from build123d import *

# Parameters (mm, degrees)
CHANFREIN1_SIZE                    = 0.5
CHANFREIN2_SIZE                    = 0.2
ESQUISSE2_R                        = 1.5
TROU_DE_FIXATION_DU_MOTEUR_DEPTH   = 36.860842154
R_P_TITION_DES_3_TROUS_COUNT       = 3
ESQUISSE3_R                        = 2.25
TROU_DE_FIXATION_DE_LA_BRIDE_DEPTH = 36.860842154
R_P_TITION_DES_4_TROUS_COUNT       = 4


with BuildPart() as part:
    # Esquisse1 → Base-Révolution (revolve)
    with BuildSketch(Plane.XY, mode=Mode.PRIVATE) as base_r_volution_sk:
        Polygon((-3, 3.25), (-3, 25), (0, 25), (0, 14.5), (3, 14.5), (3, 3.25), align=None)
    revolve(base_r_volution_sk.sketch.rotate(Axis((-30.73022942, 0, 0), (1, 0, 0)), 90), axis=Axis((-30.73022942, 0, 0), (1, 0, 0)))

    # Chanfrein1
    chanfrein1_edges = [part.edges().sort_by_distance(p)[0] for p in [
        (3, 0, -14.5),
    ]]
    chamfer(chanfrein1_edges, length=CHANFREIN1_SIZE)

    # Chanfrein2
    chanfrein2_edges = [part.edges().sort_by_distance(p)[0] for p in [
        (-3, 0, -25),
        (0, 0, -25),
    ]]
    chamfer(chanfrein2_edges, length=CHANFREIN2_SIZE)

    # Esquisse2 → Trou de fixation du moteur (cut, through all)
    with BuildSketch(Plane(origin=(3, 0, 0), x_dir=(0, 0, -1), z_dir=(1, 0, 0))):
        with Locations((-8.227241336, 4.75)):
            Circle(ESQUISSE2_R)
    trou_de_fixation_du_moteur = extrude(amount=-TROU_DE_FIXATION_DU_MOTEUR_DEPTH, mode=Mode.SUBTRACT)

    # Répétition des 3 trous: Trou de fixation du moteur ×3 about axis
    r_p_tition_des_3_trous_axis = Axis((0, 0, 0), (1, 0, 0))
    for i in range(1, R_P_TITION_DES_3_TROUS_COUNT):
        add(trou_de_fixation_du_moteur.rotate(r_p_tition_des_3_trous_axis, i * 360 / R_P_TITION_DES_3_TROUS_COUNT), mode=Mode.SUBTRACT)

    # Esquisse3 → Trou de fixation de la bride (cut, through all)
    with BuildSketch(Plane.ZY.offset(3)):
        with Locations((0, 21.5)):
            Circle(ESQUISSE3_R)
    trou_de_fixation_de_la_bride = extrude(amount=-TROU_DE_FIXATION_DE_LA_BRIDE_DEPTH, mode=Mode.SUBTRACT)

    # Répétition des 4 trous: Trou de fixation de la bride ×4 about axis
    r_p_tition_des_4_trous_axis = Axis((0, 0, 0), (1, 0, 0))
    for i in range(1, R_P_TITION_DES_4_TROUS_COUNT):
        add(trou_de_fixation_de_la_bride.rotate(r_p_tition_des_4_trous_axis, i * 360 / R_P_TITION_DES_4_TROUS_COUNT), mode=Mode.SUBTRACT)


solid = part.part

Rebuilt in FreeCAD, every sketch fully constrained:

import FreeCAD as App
import Part
import Sketcher

V = App.Vector


def edges_at(feature, points):
    """Names of the edges that pass closest to the given points."""
    edges = feature.Shape.Edges
    near = lambda p: min(range(len(edges)), key=lambda i: edges[i].distToShape(Part.Vertex(*p))[0])
    return sorted({f"Edge{near(p) + 1}" for p in points})


def add_polygon(sketch, points):
    """Adds a closed chain of lines whose ends are joined by coincident constraints."""
    first, n = sketch.GeometryCount, len(points)
    for a, b in zip(points, points[1:] + points[:1]):
        sketch.addGeometry(Part.LineSegment(App.Vector(*a, 0), App.Vector(*b, 0)), False)
    for i in range(n):
        sketch.addConstraint(Sketcher.Constraint("Coincident", first + i, 2, first + (i + 1) % n, 1))

doc = App.newDocument("Part")
body = doc.addObject("PartDesign::Body", "Body")

# Sketch on XY plane
sketch1 = body.newObject("Sketcher::SketchObject", "Sketch")
sketch1.AttachmentSupport = (doc.getObject("XY_Plane"), [""])
sketch1.MapMode = "FlatFace"
add_polygon(sketch1, [(-3, 25), (-3, 3.2), (3, 3.2), (3, 14.5), (0, 14.5), (0, 25)])  # lines 0-5
sketch1.addConstraint([
    Sketcher.Constraint("Vertical", 0),
    Sketcher.Constraint("Horizontal", 1),
    Sketcher.Constraint("Vertical", 2),
    Sketcher.Constraint("Horizontal", 3),
    Sketcher.Constraint("Vertical", 4),
    Sketcher.Constraint("Horizontal", 5),
    Sketcher.Constraint("PointOnObject", 3, 2, -2),
    Sketcher.Constraint("Equal", 3, 5),
    Sketcher.Constraint("DistanceX", 1, 1, 1, 2, 6.0),
    Sketcher.Constraint("DistanceY", 4, 1, 4, 2, 10.5),
    Sketcher.Constraint("DistanceY", -1, 1, 4, 2, 25.0),
    Sketcher.Constraint("DistanceY", 0, 2, 0, 1, 21.75),
])
revolution = body.newObject("PartDesign::Revolution", "Revolution")
revolution.Profile = sketch1
revolution.ReferenceAxis = (sketch1, ["H_Axis"])
revolution.Angle = 360
doc.recompute()

chamfer = body.newObject("PartDesign::Chamfer", "Chamfer")
chamfer.Base = (revolution, edges_at(revolution, [(3, 0, -14.5)]))
chamfer.Size = 0.5
doc.recompute()

chamfer2 = body.newObject("PartDesign::Chamfer", "Chamfer001")
chamfer2.Base = (chamfer, edges_at(chamfer, [(-3, 0, -25), (0, 0, -25)]))
chamfer2.Size = 0.2

# Sketch on YZ plane
sketch2 = body.newObject("Sketcher::SketchObject", "Sketch001")
sketch2.AttachmentSupport = (doc.getObject("YZ_Plane"), [""])
sketch2.MapMode = "FlatFace"
sketch2.AttachmentOffset = App.Placement(V(0, 0, 3), App.Rotation())
sketch2.addGeometry(Part.Circle(V(4.8, 8.2, 0), V(0, 0, 1), 1.5), False)
sketch2.addConstraint([
    Sketcher.Constraint("Diameter", 0, 3.0),
    Sketcher.Constraint("DistanceX", -1, 1, 0, 3, 4.75),
    Sketcher.Constraint("DistanceY", -1, 1, 0, 3, 8.227241),
])
pocket1 = body.newObject("PartDesign::Pocket", "Pocket")
pocket1.Profile = sketch2
pocket1.Type = "ThroughAll"
doc.recompute()

polarpattern = body.newObject("PartDesign::PolarPattern", "PolarPattern")
polarpattern.Originals = [pocket1]
polarpattern.Axis = (doc.getObject("X_Axis"), [""])
polarpattern.Angle = 360
polarpattern.Occurrences = 3
body.Tip = polarpattern

# Sketch on YZ plane
sketch3 = body.newObject("Sketcher::SketchObject", "Sketch002")
sketch3.AttachmentSupport = (doc.getObject("YZ_Plane"), [""])
sketch3.MapMode = "FlatFace"
sketch3.AttachmentOffset = App.Placement(V(0, 0, -3), App.Rotation())
sketch3.addGeometry(Part.Circle(V(21.5, 0, 0), V(0, 0, 1), 2.2), False)
sketch3.addConstraint([
    Sketcher.Constraint("PointOnObject", 0, 3, -1),
    Sketcher.Constraint("Diameter", 0, 4.5),
    Sketcher.Constraint("DistanceX", -1, 1, 0, 3, 21.5),
])
pocket2 = body.newObject("PartDesign::Pocket", "Pocket001")
pocket2.Profile = sketch3
pocket2.Type = "ThroughAll"
pocket2.Reversed = True
doc.recompute()

polarpattern2 = body.newObject("PartDesign::PolarPattern", "PolarPattern001")
polarpattern2.Originals = [pocket2]
polarpattern2.Axis = (doc.getObject("X_Axis"), [""])
polarpattern2.Angle = 360
polarpattern2.Occurrences = 4
body.Tip = polarpattern2

doc.recompute()
